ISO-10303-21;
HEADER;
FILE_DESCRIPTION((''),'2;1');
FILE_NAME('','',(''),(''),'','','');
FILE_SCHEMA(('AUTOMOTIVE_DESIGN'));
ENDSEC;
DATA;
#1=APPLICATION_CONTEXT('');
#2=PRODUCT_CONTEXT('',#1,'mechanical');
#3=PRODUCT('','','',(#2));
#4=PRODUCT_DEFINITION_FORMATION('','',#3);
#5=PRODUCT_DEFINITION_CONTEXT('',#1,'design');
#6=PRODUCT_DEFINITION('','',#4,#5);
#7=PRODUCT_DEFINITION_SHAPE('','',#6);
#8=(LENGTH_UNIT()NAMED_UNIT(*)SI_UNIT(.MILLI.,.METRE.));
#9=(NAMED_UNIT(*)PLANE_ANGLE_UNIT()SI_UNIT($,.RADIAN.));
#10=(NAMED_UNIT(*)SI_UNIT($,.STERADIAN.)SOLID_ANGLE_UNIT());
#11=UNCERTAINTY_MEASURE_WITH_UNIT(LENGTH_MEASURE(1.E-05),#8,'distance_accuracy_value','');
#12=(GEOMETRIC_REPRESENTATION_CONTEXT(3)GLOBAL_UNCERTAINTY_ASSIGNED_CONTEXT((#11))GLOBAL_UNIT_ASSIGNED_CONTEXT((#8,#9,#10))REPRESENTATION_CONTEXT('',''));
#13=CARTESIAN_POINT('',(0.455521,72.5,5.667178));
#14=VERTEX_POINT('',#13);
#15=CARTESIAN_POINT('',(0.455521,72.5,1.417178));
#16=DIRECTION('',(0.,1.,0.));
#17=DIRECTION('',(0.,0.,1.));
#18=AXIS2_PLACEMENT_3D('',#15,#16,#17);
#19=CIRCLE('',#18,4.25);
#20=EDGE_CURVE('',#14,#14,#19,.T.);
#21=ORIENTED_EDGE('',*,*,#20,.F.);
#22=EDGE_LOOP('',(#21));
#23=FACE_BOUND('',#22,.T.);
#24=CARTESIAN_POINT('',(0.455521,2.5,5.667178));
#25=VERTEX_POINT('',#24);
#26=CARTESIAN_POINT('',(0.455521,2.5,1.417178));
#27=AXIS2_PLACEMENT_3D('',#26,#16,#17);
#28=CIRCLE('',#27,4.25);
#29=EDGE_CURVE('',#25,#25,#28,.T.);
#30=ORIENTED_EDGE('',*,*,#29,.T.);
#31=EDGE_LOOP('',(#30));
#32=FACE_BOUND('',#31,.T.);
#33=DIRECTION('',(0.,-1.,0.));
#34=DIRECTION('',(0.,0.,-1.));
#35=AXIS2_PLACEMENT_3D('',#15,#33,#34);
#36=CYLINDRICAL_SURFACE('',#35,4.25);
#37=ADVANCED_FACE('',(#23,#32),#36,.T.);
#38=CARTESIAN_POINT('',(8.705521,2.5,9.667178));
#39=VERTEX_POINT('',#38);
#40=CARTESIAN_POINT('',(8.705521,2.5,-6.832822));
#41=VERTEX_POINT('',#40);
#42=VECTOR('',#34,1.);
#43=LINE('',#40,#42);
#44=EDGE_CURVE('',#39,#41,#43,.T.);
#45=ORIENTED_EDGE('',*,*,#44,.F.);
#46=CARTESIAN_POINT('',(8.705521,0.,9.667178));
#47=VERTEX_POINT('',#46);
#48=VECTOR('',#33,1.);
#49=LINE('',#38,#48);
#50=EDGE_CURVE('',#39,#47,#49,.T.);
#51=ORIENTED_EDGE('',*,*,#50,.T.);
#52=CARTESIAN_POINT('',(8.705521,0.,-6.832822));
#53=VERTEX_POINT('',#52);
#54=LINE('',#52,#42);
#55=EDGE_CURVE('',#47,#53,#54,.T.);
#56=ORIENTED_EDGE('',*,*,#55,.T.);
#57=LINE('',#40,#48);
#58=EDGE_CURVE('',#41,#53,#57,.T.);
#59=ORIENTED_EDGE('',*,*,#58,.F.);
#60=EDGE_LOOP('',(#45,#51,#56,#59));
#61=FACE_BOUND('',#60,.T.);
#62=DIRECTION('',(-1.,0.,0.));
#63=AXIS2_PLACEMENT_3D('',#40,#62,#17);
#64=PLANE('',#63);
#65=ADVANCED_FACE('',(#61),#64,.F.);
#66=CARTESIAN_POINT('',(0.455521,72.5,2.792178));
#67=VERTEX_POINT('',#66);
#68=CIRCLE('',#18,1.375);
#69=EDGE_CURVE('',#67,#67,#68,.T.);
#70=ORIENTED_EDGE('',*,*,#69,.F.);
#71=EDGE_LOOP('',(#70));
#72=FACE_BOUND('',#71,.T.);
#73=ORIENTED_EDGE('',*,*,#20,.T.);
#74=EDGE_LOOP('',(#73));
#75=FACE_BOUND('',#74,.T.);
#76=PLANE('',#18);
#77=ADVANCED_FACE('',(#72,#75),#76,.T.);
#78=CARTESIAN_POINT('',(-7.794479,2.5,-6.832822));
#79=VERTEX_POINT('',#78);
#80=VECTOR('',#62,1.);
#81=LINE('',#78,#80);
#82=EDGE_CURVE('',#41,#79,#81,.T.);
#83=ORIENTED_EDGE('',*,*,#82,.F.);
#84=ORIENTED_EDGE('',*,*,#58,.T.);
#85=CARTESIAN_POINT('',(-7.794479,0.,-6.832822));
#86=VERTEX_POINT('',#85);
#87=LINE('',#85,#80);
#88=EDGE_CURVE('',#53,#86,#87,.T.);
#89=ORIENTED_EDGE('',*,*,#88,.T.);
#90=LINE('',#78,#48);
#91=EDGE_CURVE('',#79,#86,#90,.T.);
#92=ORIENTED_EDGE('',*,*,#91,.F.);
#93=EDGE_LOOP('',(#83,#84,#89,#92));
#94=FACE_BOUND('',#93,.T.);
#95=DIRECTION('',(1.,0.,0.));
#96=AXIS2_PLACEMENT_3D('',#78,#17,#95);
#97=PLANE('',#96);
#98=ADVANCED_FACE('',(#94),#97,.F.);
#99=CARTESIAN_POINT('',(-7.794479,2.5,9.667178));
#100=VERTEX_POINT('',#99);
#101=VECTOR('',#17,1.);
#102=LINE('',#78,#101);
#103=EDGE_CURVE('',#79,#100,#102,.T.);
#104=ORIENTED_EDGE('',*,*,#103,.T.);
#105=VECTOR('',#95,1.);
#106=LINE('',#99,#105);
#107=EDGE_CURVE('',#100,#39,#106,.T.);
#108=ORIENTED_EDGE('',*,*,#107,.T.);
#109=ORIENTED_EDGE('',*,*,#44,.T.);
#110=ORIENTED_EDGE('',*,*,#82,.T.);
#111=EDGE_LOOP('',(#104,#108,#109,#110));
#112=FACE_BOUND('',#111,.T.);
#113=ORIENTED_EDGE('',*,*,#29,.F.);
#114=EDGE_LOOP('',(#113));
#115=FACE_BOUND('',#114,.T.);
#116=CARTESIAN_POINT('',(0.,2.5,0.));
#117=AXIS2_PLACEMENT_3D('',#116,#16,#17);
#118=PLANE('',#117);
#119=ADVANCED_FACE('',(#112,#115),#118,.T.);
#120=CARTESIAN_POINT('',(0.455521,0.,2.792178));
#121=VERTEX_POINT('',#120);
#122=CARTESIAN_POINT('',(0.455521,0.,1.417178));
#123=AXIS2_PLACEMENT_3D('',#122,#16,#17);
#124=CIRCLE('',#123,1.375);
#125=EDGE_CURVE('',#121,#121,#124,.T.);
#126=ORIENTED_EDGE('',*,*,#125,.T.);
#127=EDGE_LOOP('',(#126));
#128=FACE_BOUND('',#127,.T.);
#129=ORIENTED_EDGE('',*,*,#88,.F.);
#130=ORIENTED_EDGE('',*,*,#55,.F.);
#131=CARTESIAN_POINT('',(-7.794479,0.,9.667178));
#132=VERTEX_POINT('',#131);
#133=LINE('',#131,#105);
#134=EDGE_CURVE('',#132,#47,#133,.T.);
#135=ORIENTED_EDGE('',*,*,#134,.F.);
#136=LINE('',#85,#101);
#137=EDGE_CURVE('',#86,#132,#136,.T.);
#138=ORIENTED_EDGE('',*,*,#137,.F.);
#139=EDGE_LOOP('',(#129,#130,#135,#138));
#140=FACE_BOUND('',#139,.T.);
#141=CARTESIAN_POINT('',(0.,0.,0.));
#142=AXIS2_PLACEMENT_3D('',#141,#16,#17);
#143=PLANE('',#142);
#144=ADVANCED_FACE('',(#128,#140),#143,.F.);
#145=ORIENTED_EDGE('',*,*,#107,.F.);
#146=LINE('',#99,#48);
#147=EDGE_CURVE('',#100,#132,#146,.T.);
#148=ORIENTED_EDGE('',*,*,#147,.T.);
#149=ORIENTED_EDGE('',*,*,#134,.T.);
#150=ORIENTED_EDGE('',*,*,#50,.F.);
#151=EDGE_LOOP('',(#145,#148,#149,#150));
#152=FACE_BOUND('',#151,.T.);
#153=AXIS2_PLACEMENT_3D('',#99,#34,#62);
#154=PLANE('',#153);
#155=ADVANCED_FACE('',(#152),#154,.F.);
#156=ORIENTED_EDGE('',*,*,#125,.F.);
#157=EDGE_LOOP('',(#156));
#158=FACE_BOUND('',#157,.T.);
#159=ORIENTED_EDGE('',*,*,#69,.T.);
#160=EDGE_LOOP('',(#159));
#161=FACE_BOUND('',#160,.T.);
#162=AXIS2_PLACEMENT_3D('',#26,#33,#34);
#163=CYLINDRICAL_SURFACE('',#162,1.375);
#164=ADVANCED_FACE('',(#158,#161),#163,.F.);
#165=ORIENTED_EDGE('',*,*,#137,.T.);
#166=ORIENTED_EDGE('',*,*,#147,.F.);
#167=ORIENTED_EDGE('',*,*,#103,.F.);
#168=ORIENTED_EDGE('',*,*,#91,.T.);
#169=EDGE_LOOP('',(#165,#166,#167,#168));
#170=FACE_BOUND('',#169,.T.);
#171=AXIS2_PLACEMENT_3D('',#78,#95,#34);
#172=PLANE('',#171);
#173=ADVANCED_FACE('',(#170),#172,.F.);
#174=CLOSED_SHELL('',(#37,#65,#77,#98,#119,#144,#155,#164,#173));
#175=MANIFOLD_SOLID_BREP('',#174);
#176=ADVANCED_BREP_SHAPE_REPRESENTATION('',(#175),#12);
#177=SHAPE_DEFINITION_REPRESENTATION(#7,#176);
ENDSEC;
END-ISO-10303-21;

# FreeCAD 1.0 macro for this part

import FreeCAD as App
import Part
import Sketcher

V = App.Vector


def add_polygon(sketch, points):
    """Adds a closed chain of lines whose ends are joined by coincident constraints."""
    first, n = sketch.GeometryCount, len(points)
    for a, b in zip(points, points[1:] + points[:1]):
        sketch.addGeometry(Part.LineSegment(App.Vector(*a, 0), App.Vector(*b, 0)), False)
    for i in range(n):
        sketch.addConstraint(Sketcher.Constraint("Coincident", first + i, 2, first + (i + 1) % n, 1))

doc = App.newDocument("Part")
body = doc.addObject("PartDesign::Body", "Body")

# Sketch on XZ plane
sketch1 = body.newObject("Sketcher::SketchObject", "Sketch")
sketch1.AttachmentSupport = (doc.getObject("XZ_Plane"), [""])
sketch1.MapMode = "FlatFace"
add_polygon(sketch1, [(-7.8, -6.8), (-7.8, 9.7), (8.7, 9.7), (8.7, -6.8)])  # lines 0-3
sketch1.addGeometry(Part.Circle(V(0.5, 1.4, 0), V(0, 0, 1), 1.4), False)  # 4
sketch1.addConstraint([
    Sketcher.Constraint("Vertical", 0),
    Sketcher.Constraint("Horizontal", 1),
    Sketcher.Constraint("Vertical", 2),
    Sketcher.Constraint("Horizontal", 3),
    Sketcher.Constraint("Equal", 3, 0),
    Sketcher.Constraint("Diameter", 4, 2.75),
    Sketcher.Constraint("DistanceX", 1, 1, 1, 2, 16.5),
    Sketcher.Constraint("DistanceX", 0, 2, 4, 3, 8.25),
    Sketcher.Constraint("DistanceY", 4, 3, 0, 2, 8.25),
    Sketcher.Constraint("DistanceX", -1, 1, 4, 3, 0.455521),
    Sketcher.Constraint("DistanceY", -1, 1, 4, 3, 1.417178),
])
pad1 = body.newObject("PartDesign::Pad", "Pad")
pad1.Profile = sketch1
pad1.Length = 2.5
pad1.Reversed = True

# Sketch on XZ plane
sketch2 = body.newObject("Sketcher::SketchObject", "Sketch001")
sketch2.AttachmentSupport = (doc.getObject("XZ_Plane"), [""])
sketch2.MapMode = "FlatFace"
sketch2.AttachmentOffset = App.Placement(V(0, 0, -2.5), App.Rotation())
sketch2.addGeometry([
    Part.Circle(V(0.5, 1.4, 0), V(0, 0, 1), 4.2),
    Part.Circle(V(0.5, 1.4, 0), V(0, 0, 1), 1.4),
], False)
sketch2.addConstraint([
    Sketcher.Constraint("Coincident", 1, 3, 0, 3),
    Sketcher.Constraint("Diameter", 0, 8.5),
    Sketcher.Constraint("Diameter", 1, 2.75),
    Sketcher.Constraint("DistanceX", -1, 1, 0, 3, 0.455521),
    Sketcher.Constraint("DistanceY", -1, 1, 0, 3, 1.417178),
])
pad2 = body.newObject("PartDesign::Pad", "Pad001")
pad2.Profile = sketch2
pad2.Length = 70
pad2.Reversed = True

doc.recompute()
